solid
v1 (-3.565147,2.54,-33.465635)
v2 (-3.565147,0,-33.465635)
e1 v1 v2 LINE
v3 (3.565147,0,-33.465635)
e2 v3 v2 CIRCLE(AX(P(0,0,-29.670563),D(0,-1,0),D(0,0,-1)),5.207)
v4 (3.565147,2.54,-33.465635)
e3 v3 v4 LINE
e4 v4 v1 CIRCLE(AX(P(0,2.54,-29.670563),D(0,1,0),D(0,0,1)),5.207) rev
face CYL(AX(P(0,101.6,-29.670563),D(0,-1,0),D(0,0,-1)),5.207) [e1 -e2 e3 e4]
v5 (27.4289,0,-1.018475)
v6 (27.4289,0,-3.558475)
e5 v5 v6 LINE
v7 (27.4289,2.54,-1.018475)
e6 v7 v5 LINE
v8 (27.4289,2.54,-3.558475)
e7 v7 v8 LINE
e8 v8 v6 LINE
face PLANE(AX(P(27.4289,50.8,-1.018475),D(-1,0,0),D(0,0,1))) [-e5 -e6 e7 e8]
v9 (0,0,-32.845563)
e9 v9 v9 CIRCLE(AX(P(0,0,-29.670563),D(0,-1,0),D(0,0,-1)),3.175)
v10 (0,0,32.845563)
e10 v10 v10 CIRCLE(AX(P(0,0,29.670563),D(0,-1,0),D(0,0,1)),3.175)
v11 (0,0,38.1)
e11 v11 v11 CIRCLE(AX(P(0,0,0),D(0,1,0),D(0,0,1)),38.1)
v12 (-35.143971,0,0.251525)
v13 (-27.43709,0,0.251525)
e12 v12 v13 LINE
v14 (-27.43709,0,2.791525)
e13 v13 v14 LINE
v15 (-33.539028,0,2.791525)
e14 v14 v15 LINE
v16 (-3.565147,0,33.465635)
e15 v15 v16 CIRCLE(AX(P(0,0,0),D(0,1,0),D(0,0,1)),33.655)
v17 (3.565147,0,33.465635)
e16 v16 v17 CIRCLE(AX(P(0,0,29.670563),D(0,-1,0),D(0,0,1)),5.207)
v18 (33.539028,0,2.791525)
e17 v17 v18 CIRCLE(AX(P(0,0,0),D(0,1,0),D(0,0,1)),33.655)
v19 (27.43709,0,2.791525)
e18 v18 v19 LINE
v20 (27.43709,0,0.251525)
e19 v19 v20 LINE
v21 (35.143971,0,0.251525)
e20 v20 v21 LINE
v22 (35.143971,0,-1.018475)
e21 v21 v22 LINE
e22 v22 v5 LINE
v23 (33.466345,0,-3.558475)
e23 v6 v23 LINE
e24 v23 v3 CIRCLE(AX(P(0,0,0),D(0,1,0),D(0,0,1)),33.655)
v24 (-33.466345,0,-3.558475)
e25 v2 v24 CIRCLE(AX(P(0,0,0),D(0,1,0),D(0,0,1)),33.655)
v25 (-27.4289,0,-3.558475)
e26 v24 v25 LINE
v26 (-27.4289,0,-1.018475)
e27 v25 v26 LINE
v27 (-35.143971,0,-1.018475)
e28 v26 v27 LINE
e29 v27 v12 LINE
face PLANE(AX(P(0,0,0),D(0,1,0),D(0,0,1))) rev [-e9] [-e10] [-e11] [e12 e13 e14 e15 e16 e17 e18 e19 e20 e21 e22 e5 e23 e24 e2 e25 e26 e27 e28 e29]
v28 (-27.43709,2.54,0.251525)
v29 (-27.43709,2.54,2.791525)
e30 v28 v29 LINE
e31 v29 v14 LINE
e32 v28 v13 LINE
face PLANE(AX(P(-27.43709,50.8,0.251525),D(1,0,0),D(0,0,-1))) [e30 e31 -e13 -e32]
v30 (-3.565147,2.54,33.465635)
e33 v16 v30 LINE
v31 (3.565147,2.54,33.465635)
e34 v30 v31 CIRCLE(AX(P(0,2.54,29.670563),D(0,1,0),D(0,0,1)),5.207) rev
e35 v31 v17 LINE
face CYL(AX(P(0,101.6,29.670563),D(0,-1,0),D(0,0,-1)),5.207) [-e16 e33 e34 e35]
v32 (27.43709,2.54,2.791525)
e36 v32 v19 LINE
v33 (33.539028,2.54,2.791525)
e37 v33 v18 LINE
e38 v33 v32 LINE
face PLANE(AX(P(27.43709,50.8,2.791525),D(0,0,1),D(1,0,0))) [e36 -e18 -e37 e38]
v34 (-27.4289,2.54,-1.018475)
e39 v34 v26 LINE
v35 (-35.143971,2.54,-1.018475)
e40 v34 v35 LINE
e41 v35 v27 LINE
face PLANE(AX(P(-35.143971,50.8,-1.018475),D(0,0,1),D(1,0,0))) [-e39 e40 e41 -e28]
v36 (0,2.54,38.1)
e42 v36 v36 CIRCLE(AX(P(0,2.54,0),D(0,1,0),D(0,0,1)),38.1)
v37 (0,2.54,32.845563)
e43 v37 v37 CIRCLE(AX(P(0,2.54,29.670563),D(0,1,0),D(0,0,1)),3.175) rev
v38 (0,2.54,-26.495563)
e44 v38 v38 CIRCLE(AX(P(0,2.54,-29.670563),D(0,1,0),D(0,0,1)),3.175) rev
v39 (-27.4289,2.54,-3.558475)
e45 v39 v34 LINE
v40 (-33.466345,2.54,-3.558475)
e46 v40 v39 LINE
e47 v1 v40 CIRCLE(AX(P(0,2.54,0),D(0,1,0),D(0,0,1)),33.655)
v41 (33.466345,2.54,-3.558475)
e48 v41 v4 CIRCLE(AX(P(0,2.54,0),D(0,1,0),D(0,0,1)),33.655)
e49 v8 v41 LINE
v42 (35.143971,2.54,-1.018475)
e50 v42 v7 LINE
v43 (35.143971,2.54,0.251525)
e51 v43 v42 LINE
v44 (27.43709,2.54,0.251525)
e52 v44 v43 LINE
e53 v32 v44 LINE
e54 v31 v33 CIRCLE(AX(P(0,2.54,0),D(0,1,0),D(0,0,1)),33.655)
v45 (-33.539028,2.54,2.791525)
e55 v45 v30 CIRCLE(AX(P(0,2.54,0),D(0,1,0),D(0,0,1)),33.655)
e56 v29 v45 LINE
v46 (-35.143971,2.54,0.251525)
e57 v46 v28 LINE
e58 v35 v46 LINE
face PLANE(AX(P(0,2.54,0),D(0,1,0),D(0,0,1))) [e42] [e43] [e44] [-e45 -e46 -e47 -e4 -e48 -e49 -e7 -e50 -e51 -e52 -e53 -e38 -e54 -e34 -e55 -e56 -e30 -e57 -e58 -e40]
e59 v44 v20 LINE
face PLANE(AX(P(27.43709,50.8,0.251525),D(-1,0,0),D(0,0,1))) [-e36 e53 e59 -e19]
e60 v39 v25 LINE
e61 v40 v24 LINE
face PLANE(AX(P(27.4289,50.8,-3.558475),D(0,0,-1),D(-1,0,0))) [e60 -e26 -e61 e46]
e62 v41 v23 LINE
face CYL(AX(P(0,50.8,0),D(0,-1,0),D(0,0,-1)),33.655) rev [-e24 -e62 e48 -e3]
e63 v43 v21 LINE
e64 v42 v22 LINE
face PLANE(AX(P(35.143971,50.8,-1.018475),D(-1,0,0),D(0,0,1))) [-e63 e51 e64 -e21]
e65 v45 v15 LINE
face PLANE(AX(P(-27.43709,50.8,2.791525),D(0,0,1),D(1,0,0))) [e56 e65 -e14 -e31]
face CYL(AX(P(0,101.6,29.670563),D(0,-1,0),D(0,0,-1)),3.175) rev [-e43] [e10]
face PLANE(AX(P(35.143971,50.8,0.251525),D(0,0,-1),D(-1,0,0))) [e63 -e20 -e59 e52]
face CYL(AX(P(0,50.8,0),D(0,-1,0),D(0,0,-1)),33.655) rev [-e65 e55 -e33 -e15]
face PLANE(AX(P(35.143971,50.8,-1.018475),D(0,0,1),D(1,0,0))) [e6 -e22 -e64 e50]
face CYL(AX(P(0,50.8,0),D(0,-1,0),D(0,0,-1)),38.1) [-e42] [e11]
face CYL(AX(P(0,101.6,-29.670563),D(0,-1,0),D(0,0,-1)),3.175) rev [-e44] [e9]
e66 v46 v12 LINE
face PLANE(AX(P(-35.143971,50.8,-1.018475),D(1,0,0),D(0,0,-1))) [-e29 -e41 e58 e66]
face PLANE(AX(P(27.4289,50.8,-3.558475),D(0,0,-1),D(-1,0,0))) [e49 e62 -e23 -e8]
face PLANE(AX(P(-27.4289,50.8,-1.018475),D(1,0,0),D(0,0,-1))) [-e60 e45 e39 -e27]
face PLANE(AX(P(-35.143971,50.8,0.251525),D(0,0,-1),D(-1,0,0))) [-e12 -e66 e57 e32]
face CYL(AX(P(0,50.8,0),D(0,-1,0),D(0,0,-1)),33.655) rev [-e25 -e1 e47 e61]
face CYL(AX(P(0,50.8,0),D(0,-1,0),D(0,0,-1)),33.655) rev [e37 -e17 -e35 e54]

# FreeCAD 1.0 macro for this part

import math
import FreeCAD as App
import Part
import Sketcher
from FreeCAD import Vector
Q = App.Units.Quantity

doc = App.newDocument("Part")
body = doc.addObject("PartDesign::Body", "Body")

sketch1 = body.newObject("Sketcher::SketchObject", "Sketch")
sketch1.AttachmentSupport = (doc.getObject("XZ_Plane"), [""])
sketch1.MapMode = "FlatFace"
sketch1.addGeometry([
    Part.Circle(Vector(0, 0, 0), Vector(0, 0, 1), 38.1),
    Part.LineSegment(Vector(-35.1, 0.3, 0), Vector(-35.1, -1, 0)),
    Part.LineSegment(Vector(-35.1, -1, 0), Vector(-27.4, -1, 0)),
    Part.LineSegment(Vector(-27.4, -1, 0), Vector(-27.4, -3.6, 0)),
    Part.LineSegment(Vector(-27.4, -3.6, 0), Vector(-33.5, -3.6, 0)),
    Part.ArcOfCircle(Part.Circle(Vector(0, 0, 0), Vector(0, 0, 1), 33.7), math.radians(-174), math.radians(-6)),
    Part.LineSegment(Vector(33.5, -3.6, 0), Vector(27.4, -3.6, 0)),
    Part.LineSegment(Vector(27.4, -3.6, 0), Vector(27.4, -1, 0)),
    Part.LineSegment(Vector(27.4, -1, 0), Vector(35.1, -1, 0)),
    Part.LineSegment(Vector(35.1, -1, 0), Vector(35.1, 0.3, 0)),
    Part.LineSegment(Vector(35.1, 0.3, 0), Vector(27.4, 0.3, 0)),
    Part.LineSegment(Vector(27.4, 0.3, 0), Vector(27.4, 2.8, 0)),
    Part.LineSegment(Vector(27.4, 2.8, 0), Vector(33.5, 2.8, 0)),
    Part.ArcOfCircle(Part.Circle(Vector(0, 0, 0), Vector(0, 0, 1), 33.7), math.radians(5), math.radians(175)),
    Part.LineSegment(Vector(-33.5, 2.8, 0), Vector(-27.4, 2.8, 0)),
    Part.LineSegment(Vector(-27.4, 2.8, 0), Vector(-27.4, 0.3, 0)),
    Part.LineSegment(Vector(-27.4, 0.3, 0), Vector(-35.1, 0.3, 0)),
], False)
sketch1.addConstraint([
    Sketcher.Constraint("Coincident", 1, 2, 2, 1),
    Sketcher.Constraint("Coincident", 2, 2, 3, 1),
    Sketcher.Constraint("Coincident", 3, 2, 4, 1),
    Sketcher.Constraint("Coincident", 4, 2, 5, 1),
    Sketcher.Constraint("Coincident", 5, 2, 6, 1),
    Sketcher.Constraint("Coincident", 6, 2, 7, 1),
    Sketcher.Constraint("Coincident", 7, 2, 8, 1),
    Sketcher.Constraint("Coincident", 8, 2, 9, 1),
    Sketcher.Constraint("Coincident", 9, 2, 10, 1),
    Sketcher.Constraint("Coincident", 10, 2, 11, 1),
    Sketcher.Constraint("Coincident", 11, 2, 12, 1),
    Sketcher.Constraint("Coincident", 12, 2, 13, 1),
    Sketcher.Constraint("Coincident", 13, 2, 14, 1),
    Sketcher.Constraint("Coincident", 14, 2, 15, 1),
    Sketcher.Constraint("Coincident", 15, 2, 16, 1),
    Sketcher.Constraint("Coincident", 16, 2, 1, 1),
    Sketcher.Constraint("Vertical", 1),
    Sketcher.Constraint("Horizontal", 2),
    Sketcher.Constraint("Vertical", 3),
    Sketcher.Constraint("Horizontal", 4),
    Sketcher.Constraint("Horizontal", 6),
    Sketcher.Constraint("Vertical", 7),
    Sketcher.Constraint("Horizontal", 8),
    Sketcher.Constraint("Vertical", 9),
    Sketcher.Constraint("Horizontal", 10),
    Sketcher.Constraint("Vertical", 11),
    Sketcher.Constraint("Horizontal", 12),
    Sketcher.Constraint("Horizontal", 14),
    Sketcher.Constraint("Vertical", 15),
    Sketcher.Constraint("Horizontal", 16),
    Sketcher.Constraint("Coincident", 0, 3, -1, 1),
    Sketcher.Constraint("Coincident", 5, 3, -1, 1),
    Sketcher.Constraint("Coincident", 13, 3, -1, 1),
    Sketcher.Constraint("Equal", 5, 13),
    Sketcher.Constraint("Symmetric", 3, 2, 6, 2, -2),
    Sketcher.Constraint("Symmetric", 1, 2, 8, 2, -2),
    Sketcher.Constraint("Symmetric", 11, 2, 14, 2, -2),
    Sketcher.Constraint("Horizontal", 10, 2, 15, 2),
    Sketcher.Constraint("Equal", 7, 11),
    Sketcher.Constraint("Diameter", 0, Q("3 in")),
    Sketcher.Constraint("DistanceY", 3, 2, 3, 1, Q("0.1 in")),
    Sketcher.Constraint("Radius", 5, Q("1.325 in")),
    Sketcher.Constraint("DistanceY", 1, 2, 1, 1, Q("0.05 in")),
    Sketcher.Constraint("DistanceX", 2, 1, 2, 2, Q("7.715071 mm")),
    Sketcher.Constraint("DistanceX", 10, 2, 10, 1, Q("7.706881 mm")),
    Sketcher.Constraint("DistanceX", 12, 1, 12, 2, Q("6.101939 mm")),
    Sketcher.Constraint("DistanceX", 2, 2, -1, 1, Q("27.4289 mm")),
])
pad1 = body.newObject("PartDesign::Pad", "Pad")
pad1.Profile = sketch1
pad1.Length = Q("2 in")
pad1.Reversed = True

sketch2 = body.newObject("Sketcher::SketchObject", "Sketch001")
sketch2.AttachmentSupport = (doc.getObject("XZ_Plane"), [""])
sketch2.MapMode = "FlatFace"
sketch2.AttachmentOffset = App.Placement(Vector(0, 0, -2 * 25.4), App.Rotation())
sketch2.addGeometry([
    Part.Circle(Vector(0, 0, 0), Vector(0, 0, 1), 38.1),
    Part.ArcOfCircle(Part.Circle(Vector(0, 0, 0), Vector(0, 0, 1), 33.7), math.radians(-174), math.radians(-6)),
    Part.LineSegment(Vector(33.5, -3.6, 0), Vector(-33.5, -3.6, 0)),
    Part.LineSegment(Vector(-27.4, -0.4, 0), Vector(-27.4, -1, 0)),
    Part.LineSegment(Vector(-27.4, -1, 0), Vector(27.4, -1, 0)),
    Part.LineSegment(Vector(27.4, -1, 0), Vector(27.4, -0.4, 0)),
    Part.LineSegment(Vector(27.4, -0.4, 0), Vector(33.7, -0.4, 0)),
    Part.ArcOfCircle(Part.Circle(Vector(0, 0, 0), Vector(0, 0, 1), 33.7), math.radians(-1), math.radians(181)),
    Part.LineSegment(Vector(-33.7, -0.4, 0), Vector(-27.4, -0.4, 0)),
], False)
sketch2.addConstraint([
    Sketcher.Constraint("Coincident", 1, 1, 2, 2),
    Sketcher.Constraint("Coincident", 2, 1, 1, 2),
    Sketcher.Constraint("Coincident", 3, 2, 4, 1),
    Sketcher.Constraint("Coincident", 4, 2, 5, 1),
    Sketcher.Constraint("Coincident", 5, 2, 6, 1),
    Sketcher.Constraint("Coincident", 6, 2, 7, 1),
    Sketcher.Constraint("Coincident", 7, 2, 8, 1),
    Sketcher.Constraint("Coincident", 8, 2, 3, 1),
    Sketcher.Constraint("Horizontal", 2),
    Sketcher.Constraint("Horizontal", 4),
    Sketcher.Constraint("Horizontal", 6),
    Sketcher.Constraint("Horizontal", 8),
    Sketcher.Constraint("Coincident", 0, 3, -1, 1),
    Sketcher.Constraint("Coincident", 1, 3, -1, 1),
    Sketcher.Constraint("Coincident", 7, 3, -1, 1),
    Sketcher.Constraint("Equal", 1, 7),
    Sketcher.Constraint("Symmetric", 5, 2, 8, 2, -2),
    Sketcher.Constraint("Equal", 3, 5),
    Sketcher.Constraint("Diameter", 0, Q("3 in")),
    Sketcher.Constraint("Radius", 1, Q("1.325 in")),
    Sketcher.Constraint("DistanceY", 1, 1, 3, 2, Q("0.1 in")),
    Sketcher.Constraint("DistanceY", 4, 2, 5, 2, Q("0.025 in")),
    Sketcher.Constraint("DistanceX", 4, 1, 4, 2, Q("54.857799 mm")),
    Sketcher.Constraint("DistanceX", 2, 2, 2, 1, Q("66.932691 mm")),
    Sketcher.Constraint("DistanceX", 6, 1, 6, 2, Q("6.219821 mm")),
])
pad2 = body.newObject("PartDesign::Pad", "Pad001")
pad2.Profile = sketch2
pad2.Length = Q("2 in")
pad2.Reversed = True

sketch3 = body.newObject("Sketcher::SketchObject", "Sketch002")
sketch3.AttachmentSupport = (doc.getObject("XZ_Plane"), [""])
sketch3.MapMode = "FlatFace"
sketch3.addGeometry([
    Part.Circle(Vector(0, -29.7, 0), Vector(0, 0, 1), 5.2),
    Part.Circle(Vector(0, -29.7, 0), Vector(0, 0, 1), 3.2),
    Part.Circle(Vector(0, 29.7, 0), Vector(0, 0, 1), 5.2),
    Part.Circle(Vector(0, 29.7, 0), Vector(0, 0, 1), 3.2),
], False)
sketch3.addConstraint([
    Sketcher.Constraint("Coincident", 1, 3, 0, 3),
    Sketcher.Constraint("Coincident", 3, 3, 2, 3),
    Sketcher.Constraint("Equal", 0, 2),
    Sketcher.Constraint("Equal", 1, 3),
    Sketcher.Constraint("Symmetric", 0, 3, 2, 3, -1, 1),
    Sketcher.Constraint("PointOnObject", 0, 3, -2),
    Sketcher.Constraint("Diameter", 0, Q("0.41 in")),
    Sketcher.Constraint("Diameter", 1, Q("0.25 in")),
    Sketcher.Constraint("DistanceY", 0, 3, -1, 1, Q("29.670563 mm")),
])
pad3 = body.newObject("PartDesign::Pad", "Pad002")
pad3.Profile = sketch3
pad3.Length = Q("4 in")
pad3.Reversed = True

sketch4 = body.newObject("Sketcher::SketchObject", "Sketch003")
sketch4.AttachmentSupport = (doc.getObject("XZ_Plane"), [""])
sketch4.MapMode = "FlatFace"
sketch4.AttachmentOffset = App.Placement(Vector(0, 0, -0.1 * 25.4), App.Rotation())
sketch4.addGeometry(Part.Circle(Vector(0, 0, 0), Vector(0, 0, 1), 38), False)
sketch4.addConstraint([
    Sketcher.Constraint("Coincident", 0, 3, -1, 1),
    Sketcher.Constraint("Diameter", 0, Q("3 in")),
])
pocket1 = body.newObject("PartDesign::Pocket", "Pocket")
pocket1.Profile = sketch4
pocket1.Length = Q("3.9 in")

doc.recompute()
